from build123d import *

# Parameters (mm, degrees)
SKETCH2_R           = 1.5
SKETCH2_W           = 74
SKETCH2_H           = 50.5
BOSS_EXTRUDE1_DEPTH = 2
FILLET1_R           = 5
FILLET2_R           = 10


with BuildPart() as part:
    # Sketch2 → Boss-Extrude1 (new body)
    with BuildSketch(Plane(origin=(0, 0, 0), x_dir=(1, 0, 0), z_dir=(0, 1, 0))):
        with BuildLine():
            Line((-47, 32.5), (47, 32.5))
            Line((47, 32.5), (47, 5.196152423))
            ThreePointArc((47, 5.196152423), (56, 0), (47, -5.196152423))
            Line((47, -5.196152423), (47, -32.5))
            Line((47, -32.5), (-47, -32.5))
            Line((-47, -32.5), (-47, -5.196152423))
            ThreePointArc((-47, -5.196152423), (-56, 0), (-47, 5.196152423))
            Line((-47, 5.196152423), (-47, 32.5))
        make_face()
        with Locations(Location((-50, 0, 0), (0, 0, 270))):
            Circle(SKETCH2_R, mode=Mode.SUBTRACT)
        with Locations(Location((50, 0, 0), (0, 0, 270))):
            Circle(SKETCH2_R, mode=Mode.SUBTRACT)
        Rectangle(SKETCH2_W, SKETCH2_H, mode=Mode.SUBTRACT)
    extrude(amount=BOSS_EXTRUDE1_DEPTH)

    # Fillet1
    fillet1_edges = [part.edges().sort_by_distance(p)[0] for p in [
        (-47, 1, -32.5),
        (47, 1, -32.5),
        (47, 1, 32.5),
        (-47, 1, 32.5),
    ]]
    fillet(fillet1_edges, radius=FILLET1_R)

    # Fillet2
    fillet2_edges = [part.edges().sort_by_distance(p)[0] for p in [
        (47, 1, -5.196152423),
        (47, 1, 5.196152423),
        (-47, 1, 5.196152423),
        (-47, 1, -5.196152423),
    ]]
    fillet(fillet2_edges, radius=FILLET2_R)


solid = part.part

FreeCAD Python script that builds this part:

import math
import FreeCAD as App
import Part
import Sketcher
Q = App.Units.Quantity


def edges_at(feature, points):
    """Names of the edges that pass closest to the given points."""
    edges = feature.Shape.Edges
    near = lambda p: min(range(len(edges)), key=lambda i: edges[i].distToShape(Part.Vertex(*p))[0])
    return sorted({f"Edge{near(p) + 1}" for p in points})

doc = App.newDocument("Part")
body = doc.addObject("PartDesign::Body", "Body")

# Sketch on XZ plane
sketch1 = body.newObject("Sketcher::SketchObject", "Sketch")
sketch1.AttachmentSupport = (doc.getObject("XZ_Plane"), [""])
sketch1.MapMode = "FlatFace"
sketch1.addGeometry([
    Part.LineSegment(App.Vector(47, -32.5, 0), App.Vector(-47, -32.5, 0)),  # 0
    Part.LineSegment(App.Vector(-47, -32.5, 0), App.Vector(-47, -5.2, 0)),  # 1
    Part.ArcOfCircle(Part.Circle(App.Vector(-50, 0, 0), App.Vector(0, 0, 1), 6), math.radians(60), math.radians(300)),  # 2
    Part.LineSegment(App.Vector(-47, 5.2, 0), App.Vector(-47, 32.5, 0)),  # 3
    Part.LineSegment(App.Vector(-47, 32.5, 0), App.Vector(47, 32.5, 0)),  # 4
    Part.LineSegment(App.Vector(47, 32.5, 0), App.Vector(47, 5.2, 0)),  # 5
    Part.ArcOfCircle(Part.Circle(App.Vector(50, 0, 0), App.Vector(0, 0, 1), 6), math.radians(-120), math.radians(120)),  # 6
    Part.LineSegment(App.Vector(47, -5.2, 0), App.Vector(47, -32.5, 0)),  # 7
    Part.Circle(App.Vector(50, 0, 0), App.Vector(0, 0, 1), 1.5),  # 8
    Part.LineSegment(App.Vector(-37, 25.2, 0), App.Vector(-37, -25.2, 0)),  # 9
    Part.LineSegment(App.Vector(-37, -25.2, 0), App.Vector(37, -25.2, 0)),  # 10
    Part.LineSegment(App.Vector(37, -25.2, 0), App.Vector(37, 25.2, 0)),  # 11
    Part.LineSegment(App.Vector(37, 25.2, 0), App.Vector(-37, 25.2, 0)),  # 12
    Part.Circle(App.Vector(-50, 0, 0), App.Vector(0, 0, 1), 1.5),  # 13
], False)
sketch1.addConstraint([
    Sketcher.Constraint("Coincident", 0, 2, 1, 1),
    Sketcher.Constraint("Coincident", 1, 2, 2, 2),
    Sketcher.Constraint("Coincident", 2, 1, 3, 1),
    Sketcher.Constraint("Coincident", 3, 2, 4, 1),
    Sketcher.Constraint("Coincident", 4, 2, 5, 1),
    Sketcher.Constraint("Coincident", 5, 2, 6, 2),
    Sketcher.Constraint("Coincident", 6, 1, 7, 1),
    Sketcher.Constraint("Coincident", 7, 2, 0, 1),
    Sketcher.Constraint("Coincident", 9, 2, 10, 1),
    Sketcher.Constraint("Coincident", 10, 2, 11, 1),
    Sketcher.Constraint("Coincident", 11, 2, 12, 1),
    Sketcher.Constraint("Coincident", 12, 2, 9, 1),
    Sketcher.Constraint("Horizontal", 0),
    Sketcher.Constraint("Vertical", 1),
    Sketcher.Constraint("Vertical", 3),
    Sketcher.Constraint("Horizontal", 4),
    Sketcher.Constraint("Vertical", 5),
    Sketcher.Constraint("Vertical", 7),
    Sketcher.Constraint("Vertical", 9),
    Sketcher.Constraint("Horizontal", 10),
    Sketcher.Constraint("Vertical", 11),
    Sketcher.Constraint("Horizontal", 12),
    Sketcher.Constraint("Coincident", 8, 3, 6, 3),
    Sketcher.Constraint("Coincident", 13, 3, 2, 3),
    Sketcher.Constraint("Equal", 2, 6),
    Sketcher.Constraint("Equal", 8, 13),
    Sketcher.Constraint("Symmetric", 2, 3, 6, 3, -1, 1),
    Sketcher.Constraint("Symmetric", 0, 2, 4, 2, -1, 1),
    Sketcher.Constraint("Symmetric", 9, 2, 11, 2, -1, 1),
    Sketcher.Constraint("Symmetric", 2, 1, 5, 2, -2),
    Sketcher.Constraint("Horizontal", 1, 2, 6, 1),
    Sketcher.Constraint("Diameter", 8, Q("3 mm")),
    Sketcher.Constraint("Radius", 2, Q("6 mm")),
    Sketcher.Constraint("DistanceX", 0, 2, 0, 1, Q("94 mm")),
    Sketcher.Constraint("DistanceX", 10, 1, 10, 2, Q("74 mm")),
    Sketcher.Constraint("DistanceY", 9, 2, 9, 1, Q("50.5 mm")),
    Sketcher.Constraint("DistanceX", 2, 3, -1, 1, Q("50 mm")),
    Sketcher.Constraint("DistanceY", 0, 2, 3, 2, Q("65 mm")),
])
pad1 = body.newObject("PartDesign::Pad", "Pad")
pad1.Profile = sketch1
pad1.Length = 2
pad1.Reversed = True
doc.recompute()

fillet = body.newObject("PartDesign::Fillet", "Fillet")
fillet.Base = (pad1, edges_at(pad1, [
    (-47, 1, -32.5),
    (47, 1, -32.5),
    (47, 1, 32.5),
    (-47, 1, 32.5),
]))
fillet.Radius = 5
doc.recompute()

fillet2 = body.newObject("PartDesign::Fillet", "Fillet001")
fillet2.Base = (fillet, edges_at(fillet, [
    (47, 1, -5.196),
    (47, 1, 5.196),
    (-47, 1, 5.196),
    (-47, 1, -5.196),
]))
fillet2.Radius = 10

doc.recompute()
